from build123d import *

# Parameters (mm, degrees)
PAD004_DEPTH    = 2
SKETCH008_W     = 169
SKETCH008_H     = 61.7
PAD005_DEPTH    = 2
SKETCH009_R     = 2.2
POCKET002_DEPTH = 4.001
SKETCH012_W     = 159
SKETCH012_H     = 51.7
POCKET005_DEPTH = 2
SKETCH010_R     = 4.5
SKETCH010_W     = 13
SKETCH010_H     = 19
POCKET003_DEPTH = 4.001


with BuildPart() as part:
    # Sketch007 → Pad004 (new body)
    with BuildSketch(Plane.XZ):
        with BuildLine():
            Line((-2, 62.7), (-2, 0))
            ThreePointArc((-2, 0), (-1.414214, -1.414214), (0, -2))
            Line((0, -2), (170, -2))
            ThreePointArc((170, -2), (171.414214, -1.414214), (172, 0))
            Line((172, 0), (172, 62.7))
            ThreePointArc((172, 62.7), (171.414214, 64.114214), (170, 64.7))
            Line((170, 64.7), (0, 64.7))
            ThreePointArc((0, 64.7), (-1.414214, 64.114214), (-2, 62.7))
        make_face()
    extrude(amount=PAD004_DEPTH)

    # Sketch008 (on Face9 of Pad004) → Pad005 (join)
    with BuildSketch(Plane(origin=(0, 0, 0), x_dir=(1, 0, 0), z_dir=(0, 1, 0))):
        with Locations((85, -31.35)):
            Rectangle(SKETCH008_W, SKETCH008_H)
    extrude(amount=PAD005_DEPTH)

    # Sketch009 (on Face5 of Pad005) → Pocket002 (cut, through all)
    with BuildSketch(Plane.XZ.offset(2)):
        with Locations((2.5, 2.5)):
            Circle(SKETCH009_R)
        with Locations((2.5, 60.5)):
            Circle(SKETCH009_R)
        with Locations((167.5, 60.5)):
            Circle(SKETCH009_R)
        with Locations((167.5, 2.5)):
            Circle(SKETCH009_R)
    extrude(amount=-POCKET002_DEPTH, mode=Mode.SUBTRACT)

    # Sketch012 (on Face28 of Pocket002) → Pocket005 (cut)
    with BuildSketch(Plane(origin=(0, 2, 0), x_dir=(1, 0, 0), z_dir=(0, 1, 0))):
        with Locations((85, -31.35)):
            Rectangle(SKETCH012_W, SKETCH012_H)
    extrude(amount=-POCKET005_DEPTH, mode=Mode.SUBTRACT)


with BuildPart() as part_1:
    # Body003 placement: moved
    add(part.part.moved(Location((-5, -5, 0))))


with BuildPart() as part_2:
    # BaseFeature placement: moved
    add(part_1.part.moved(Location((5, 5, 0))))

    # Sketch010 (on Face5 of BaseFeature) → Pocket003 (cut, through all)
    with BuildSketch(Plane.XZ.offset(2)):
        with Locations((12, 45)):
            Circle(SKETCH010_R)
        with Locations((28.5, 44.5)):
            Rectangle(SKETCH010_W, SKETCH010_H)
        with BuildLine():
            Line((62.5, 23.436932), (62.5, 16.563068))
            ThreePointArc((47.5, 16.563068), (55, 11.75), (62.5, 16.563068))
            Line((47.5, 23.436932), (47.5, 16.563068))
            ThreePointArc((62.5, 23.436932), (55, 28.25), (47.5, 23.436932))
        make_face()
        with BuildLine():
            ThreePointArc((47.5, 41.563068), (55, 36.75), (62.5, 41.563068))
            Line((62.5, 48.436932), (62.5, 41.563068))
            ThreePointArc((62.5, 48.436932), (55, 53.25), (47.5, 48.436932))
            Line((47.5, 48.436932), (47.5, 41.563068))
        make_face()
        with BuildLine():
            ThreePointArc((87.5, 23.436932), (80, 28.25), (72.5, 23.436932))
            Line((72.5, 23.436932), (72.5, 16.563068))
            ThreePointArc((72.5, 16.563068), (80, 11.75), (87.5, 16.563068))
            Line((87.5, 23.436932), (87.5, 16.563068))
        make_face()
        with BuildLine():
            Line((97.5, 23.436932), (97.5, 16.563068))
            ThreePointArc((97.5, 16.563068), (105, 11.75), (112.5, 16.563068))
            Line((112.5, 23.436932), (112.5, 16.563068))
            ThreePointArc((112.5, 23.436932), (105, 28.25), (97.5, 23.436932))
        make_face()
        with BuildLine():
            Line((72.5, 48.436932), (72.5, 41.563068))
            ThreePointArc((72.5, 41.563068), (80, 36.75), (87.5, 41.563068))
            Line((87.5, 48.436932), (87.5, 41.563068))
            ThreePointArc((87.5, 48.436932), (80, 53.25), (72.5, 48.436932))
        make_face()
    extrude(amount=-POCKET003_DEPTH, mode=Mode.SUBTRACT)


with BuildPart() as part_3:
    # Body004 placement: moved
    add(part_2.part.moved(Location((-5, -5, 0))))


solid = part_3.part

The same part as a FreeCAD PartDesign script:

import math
import FreeCAD as App
import Part
import Sketcher
from FreeCAD import Vector


def add_polygon(sketch, points):
    """Adds a closed chain of lines whose ends are joined by coincident constraints."""
    first, n = sketch.GeometryCount, len(points)
    for a, b in zip(points, points[1:] + points[:1]):
        sketch.addGeometry(Part.LineSegment(App.Vector(*a, 0), App.Vector(*b, 0)), False)
    for i in range(n):
        sketch.addConstraint(Sketcher.Constraint("Coincident", first + i, 2, first + (i + 1) % n, 1))

doc = App.newDocument("Part")
params = doc.addObject("Spreadsheet::Sheet", "Params")
for row, (alias, value) in enumerate([
    ("sketch1_radius", "1.999999 mm"),
    ("sketch1_width", "170 mm"),
    ("sketch1_height", "62.7 mm"),
    ("pad1_length", "2 mm"),
    ("sketch2_width", "169 mm"),
    ("sketch2_height", "61.7 mm"),
    ("pad2_length", "2 mm"),
    ("sketch3_diameter", "4.4 mm"),
    ("sketch4_width", "159 mm"),
    ("sketch4_height", "51.7 mm"),
    ("pocket2_length", "2 mm"),
    ("sketch5_diameter", "9 mm"),
    ("sketch5_width", "13 mm"),
    ("sketch5_height", "19 mm"),
    ("sketch5_radius", "8.25 mm"),
], start=1):
    params.set(f"A{row}", alias)
    params.set(f"B{row}", "=" + value)
    params.setAlias(f"B{row}", alias)

body = doc.addObject("PartDesign::Body", "Body")

# Sketch on XZ plane
sketch1 = body.newObject("Sketcher::SketchObject", "Sketch")
sketch1.AttachmentSupport = (doc.getObject("XZ_Plane"), [""])
sketch1.MapMode = "FlatFace"
sketch1.addGeometry([
    Part.LineSegment(Vector(-2, 62.7, 0), Vector(-2, 0, 0)),  # 0
    Part.ArcOfCircle(Part.Circle(Vector(0, 0, 0), Vector(0, 0, 1), 2), math.radians(180), math.radians(270)),  # 1
    Part.LineSegment(Vector(0, -2, 0), Vector(170, -2, 0)),  # 2
    Part.ArcOfCircle(Part.Circle(Vector(170, 0, 0), Vector(0, 0, 1), 2), math.radians(-90), math.radians(0)),  # 3
    Part.LineSegment(Vector(172, 0, 0), Vector(172, 62.7, 0)),  # 4
    Part.ArcOfCircle(Part.Circle(Vector(170, 62.7, 0), Vector(0, 0, 1), 2), math.radians(0), math.radians(90)),  # 5
    Part.LineSegment(Vector(170, 64.7, 0), Vector(0, 64.7, 0)),  # 6
    Part.ArcOfCircle(Part.Circle(Vector(0, 62.7, 0), Vector(0, 0, 1), 2), math.radians(90), math.radians(180)),  # 7
], False)
sketch1.addConstraint([
    Sketcher.Constraint("Tangent", 0, 2, 1, 1),
    Sketcher.Constraint("Tangent", 1, 2, 2, 1),
    Sketcher.Constraint("Tangent", 2, 2, 3, 1),
    Sketcher.Constraint("Tangent", 3, 2, 4, 1),
    Sketcher.Constraint("Tangent", 4, 2, 5, 1),
    Sketcher.Constraint("Tangent", 5, 2, 6, 1),
    Sketcher.Constraint("Tangent", 6, 2, 7, 1),
    Sketcher.Constraint("Tangent", 7, 2, 0, 1),
    Sketcher.Constraint("Vertical", 0),
    Sketcher.Constraint("Horizontal", 2),
    Sketcher.Constraint("Vertical", 4),
    Sketcher.Constraint("Horizontal", 6),
    Sketcher.Constraint("Coincident", 1, 3, -1, 1),
    Sketcher.Constraint("Equal", 1, 3),
    Sketcher.Constraint("Equal", 3, 5),
    Sketcher.Constraint("Equal", 5, 7),
    Sketcher.Constraint("Radius", 1, 1.999999),
    Sketcher.Constraint("DistanceX", 2, 1, 2, 2, 170.0),
    Sketcher.Constraint("DistanceY", 0, 2, 0, 1, 62.7),
])
sketch1.setExpression("Constraints[16]", "Params.sketch1_radius")
sketch1.setExpression("Constraints[17]", "Params.sketch1_width")
sketch1.setExpression("Constraints[18]", "Params.sketch1_height")
pad1 = body.newObject("PartDesign::Pad", "Pad")
pad1.Profile = sketch1
pad1.setExpression("Length", "Params.pad1_length")

# Sketch on XZ plane
sketch2 = body.newObject("Sketcher::SketchObject", "Sketch001")
sketch2.AttachmentSupport = (doc.getObject("XZ_Plane"), [""])
sketch2.MapMode = "FlatFace"
add_polygon(sketch2, [(0, 0), (0, 62), (170, 62), (170, 0)])  # lines 0-3
sketch2.addConstraint([
    Sketcher.Constraint("Vertical", 0),
    Sketcher.Constraint("Horizontal", 1),
    Sketcher.Constraint("Vertical", 2),
    Sketcher.Constraint("Horizontal", 3),
    Sketcher.Constraint("DistanceX", 1, 1, 1, 2, 169.0),
    Sketcher.Constraint("DistanceY", 0, 1, 0, 2, 61.7),
    Sketcher.Constraint("DistanceX", -1, 1, 0, 2, 0.5),
    Sketcher.Constraint("DistanceY", -1, 1, 0, 2, 62.2),
])
sketch2.setExpression("Constraints[8]", "Params.sketch2_width")
sketch2.setExpression("Constraints[9]", "Params.sketch2_height")
pad2 = body.newObject("PartDesign::Pad", "Pad001")
pad2.Profile = sketch2
pad2.setExpression("Length", "Params.pad2_length")
pad2.Reversed = True

# Sketch on XZ plane
sketch3 = body.newObject("Sketcher::SketchObject", "Sketch002")
sketch3.AttachmentSupport = (doc.getObject("XZ_Plane"), [""])
sketch3.MapMode = "FlatFace"
sketch3.AttachmentOffset = App.Placement(Vector(0, 0, 2), App.Rotation())
sketch3.addGeometry([
    Part.Circle(Vector(2.5, 2.5, 0), Vector(0, 0, 1), 2.2),
    Part.Circle(Vector(2.5, 60.5, 0), Vector(0, 0, 1), 2.2),
    Part.Circle(Vector(167.5, 60.5, 0), Vector(0, 0, 1), 2.2),
    Part.Circle(Vector(167.5, 2.5, 0), Vector(0, 0, 1), 2.2),
], False)
sketch3.addConstraint([
    Sketcher.Constraint("Equal", 0, 1),
    Sketcher.Constraint("Equal", 1, 2),
    Sketcher.Constraint("Equal", 2, 3),
    Sketcher.Constraint("Horizontal", 1, 3, 2, 3),
    Sketcher.Constraint("Horizontal", 0, 3, 3, 3),
    Sketcher.Constraint("Vertical", 0, 3, 1, 3),
    Sketcher.Constraint("Vertical", 2, 3, 3, 3),
    Sketcher.Constraint("Diameter", 0, 4.4),
    Sketcher.Constraint("DistanceY", 0, 3, 1, 3, 58.0),
    Sketcher.Constraint("DistanceX", 1, 3, 2, 3, 165.0),
    Sketcher.Constraint("DistanceX", -1, 1, 0, 3, 2.5),
    Sketcher.Constraint("DistanceY", -1, 1, 0, 3, 2.5),
])
sketch3.setExpression("Constraints[7]", "Params.sketch3_diameter")
pocket1 = body.newObject("PartDesign::Pocket", "Pocket")
pocket1.Profile = sketch3
pocket1.Type = "ThroughAll"

# Sketch on XZ plane
sketch4 = body.newObject("Sketcher::SketchObject", "Sketch003")
sketch4.AttachmentSupport = (doc.getObject("XZ_Plane"), [""])
sketch4.MapMode = "FlatFace"
sketch4.AttachmentOffset = App.Placement(Vector(0, 0, -2), App.Rotation())
add_polygon(sketch4, [(6, 6), (6, 57), (164, 57), (164, 6)])  # lines 0-3
sketch4.addConstraint([
    Sketcher.Constraint("Vertical", 0),
    Sketcher.Constraint("Horizontal", 1),
    Sketcher.Constraint("Vertical", 2),
    Sketcher.Constraint("Horizontal", 3),
    Sketcher.Constraint("DistanceX", 1, 1, 1, 2, 159.0),
    Sketcher.Constraint("DistanceY", 0, 1, 0, 2, 51.7),
    Sketcher.Constraint("DistanceX", -1, 1, 0, 2, 5.5),
    Sketcher.Constraint("DistanceY", -1, 1, 0, 2, 57.2),
])
sketch4.setExpression("Constraints[8]", "Params.sketch4_width")
sketch4.setExpression("Constraints[9]", "Params.sketch4_height")
pocket2 = body.newObject("PartDesign::Pocket", "Pocket001")
pocket2.Profile = sketch4
pocket2.setExpression("Length", "Params.pocket2_length")
pocket2.Reversed = True
body2 = doc.addObject("PartDesign::Body", "Body001")
doc.recompute()

body.Placement = App.Placement(Vector(-5, -5, 0), App.Rotation(Vector(0, 0, 1), 0))
boolean = body2.newObject("PartDesign::Boolean", "Boolean")
boolean.Type = "Fuse"
boolean.addObjects([body])
body3 = doc.addObject("PartDesign::Body", "Body002")
doc.recompute()

body2.Placement = App.Placement(Vector(5, 5, 0), App.Rotation(Vector(0, 0, 1), 0))
boolean2 = body3.newObject("PartDesign::Boolean", "Boolean001")
boolean2.Type = "Fuse"
boolean2.addObjects([body2])

# Sketch on XZ plane
sketch5 = body3.newObject("Sketcher::SketchObject", "Sketch004")
sketch5.AttachmentSupport = (doc.getObject("XZ_Plane002"), [""])
sketch5.MapMode = "FlatFace"
sketch5.AttachmentOffset = App.Placement(Vector(0, 0, 2), App.Rotation())
sketch5.addGeometry(Part.Circle(Vector(12, 45, 0), Vector(0, 0, 1), 4.5), False)  # 0
add_polygon(sketch5, [(22, 54), (22, 35), (35, 35), (35, 54)])  # lines 1-4
sketch5.addGeometry(Part.LineSegment(Vector(62.5, 16.6, 0), Vector(62.5, 23.4, 0)), False)  # 5
sketch5.addGeometry(Part.ArcOfCircle(Part.Circle(Vector(55, 20, 0), Vector(0, 0, 1), 8.3), math.radians(25), math.radians(155)), False)  # 6
sketch5.addGeometry(Part.LineSegment(Vector(47.5, 23.4, 0), Vector(47.5, 16.6, 0)), False)  # 7
sketch5.addGeometry(Part.ArcOfCircle(Part.Circle(Vector(55, 20, 0), Vector(0, 0, 1), 8.3), math.radians(-155), math.radians(-25)), False)  # 8
sketch5.addGeometry(Part.ArcOfCircle(Part.Circle(Vector(55, 45, 0), Vector(0, 0, 1), 8.3), math.radians(-155), math.radians(-25)), False)  # 9
sketch5.addGeometry(Part.LineSegment(Vector(62.5, 41.6, 0), Vector(62.5, 48.4, 0)), False)  # 10
sketch5.addGeometry(Part.ArcOfCircle(Part.Circle(Vector(55, 45, 0), Vector(0, 0, 1), 8.3), math.radians(25), math.radians(155)), False)  # 11
sketch5.addGeometry(Part.LineSegment(Vector(47.5, 48.4, 0), Vector(47.5, 41.6, 0)), False)  # 12
sketch5.addGeometry(Part.ArcOfCircle(Part.Circle(Vector(80, 20, 0), Vector(0, 0, 1), 8.3), math.radians(25), math.radians(155)), False)  # 13
sketch5.addGeometry(Part.LineSegment(Vector(72.5, 23.4, 0), Vector(72.5, 16.6, 0)), False)  # 14
sketch5.addGeometry(Part.ArcOfCircle(Part.Circle(Vector(80, 20, 0), Vector(0, 0, 1), 8.3), math.radians(-155), math.radians(-25)), False)  # 15
sketch5.addGeometry(Part.LineSegment(Vector(87.5, 16.6, 0), Vector(87.5, 23.4, 0)), False)  # 16
sketch5.addGeometry(Part.LineSegment(Vector(97.5, 23.4, 0), Vector(97.5, 16.6, 0)), False)  # 17
sketch5.addGeometry(Part.ArcOfCircle(Part.Circle(Vector(105, 20, 0), Vector(0, 0, 1), 8.3), math.radians(-155), math.radians(-25)), False)  # 18
sketch5.addGeometry(Part.LineSegment(Vector(112.5, 16.6, 0), Vector(112.5, 23.4, 0)), False)  # 19
sketch5.addGeometry(Part.ArcOfCircle(Part.Circle(Vector(105, 20, 0), Vector(0, 0, 1), 8.3), math.radians(25), math.radians(155)), False)  # 20
sketch5.addGeometry(Part.LineSegment(Vector(72.5, 48.4, 0), Vector(72.5, 41.6, 0)), False)  # 21
sketch5.addGeometry(Part.ArcOfCircle(Part.Circle(Vector(80, 45, 0), Vector(0, 0, 1), 8.3), math.radians(-155), math.radians(-25)), False)  # 22
sketch5.addGeometry(Part.LineSegment(Vector(87.5, 41.6, 0), Vector(87.5, 48.4, 0)), False)  # 23
sketch5.addGeometry(Part.ArcOfCircle(Part.Circle(Vector(80, 45, 0), Vector(0, 0, 1), 8.3), math.radians(25), math.radians(155)), False)  # 24
sketch5.addConstraint([
    Sketcher.Constraint("Coincident", 5, 2, 6, 1),
    Sketcher.Constraint("Coincident", 6, 2, 7, 1),
    Sketcher.Constraint("Coincident", 7, 2, 8, 1),
    Sketcher.Constraint("Coincident", 8, 2, 5, 1),
    Sketcher.Constraint("Coincident", 9, 2, 10, 1),
    Sketcher.Constraint("Coincident", 10, 2, 11, 1),
    Sketcher.Constraint("Coincident", 11, 2, 12, 1),
    Sketcher.Constraint("Coincident", 12, 2, 9, 1),
    Sketcher.Constraint("Coincident", 13, 2, 14, 1),
    Sketcher.Constraint("Coincident", 14, 2, 15, 1),
    Sketcher.Constraint("Coincident", 15, 2, 16, 1),
    Sketcher.Constraint("Coincident", 16, 2, 13, 1),
    Sketcher.Constraint("Coincident", 17, 2, 18, 1),
    Sketcher.Constraint("Coincident", 18, 2, 19, 1),
    Sketcher.Constraint("Coincident", 19, 2, 20, 1),
    Sketcher.Constraint("Coincident", 20, 2, 17, 1),
    Sketcher.Constraint("Coincident", 21, 2, 22, 1),
    Sketcher.Constraint("Coincident", 22, 2, 23, 1),
    Sketcher.Constraint("Coincident", 23, 2, 24, 1),
    Sketcher.Constraint("Coincident", 24, 2, 21, 1),
    Sketcher.Constraint("Vertical", 1),
    Sketcher.Constraint("Horizontal", 2),
    Sketcher.Constraint("Vertical", 3),
    Sketcher.Constraint("Horizontal", 4),
    Sketcher.Constraint("Vertical", 5),
    Sketcher.Constraint("Vertical", 7),
    Sketcher.Constraint("Vertical", 10),
    Sketcher.Constraint("Vertical", 12),
    Sketcher.Constraint("Vertical", 14),
    Sketcher.Constraint("Vertical", 16),
    Sketcher.Constraint("Vertical", 17),
    Sketcher.Constraint("Vertical", 19),
    Sketcher.Constraint("Vertical", 21),
    Sketcher.Constraint("Vertical", 23),
    Sketcher.Constraint("Coincident", 8, 3, 6, 3),
    Sketcher.Constraint("Coincident", 11, 3, 9, 3),
    Sketcher.Constraint("Coincident", 15, 3, 13, 3),
    Sketcher.Constraint("Coincident", 20, 3, 18, 3),
    Sketcher.Constraint("Coincident", 24, 3, 22, 3),
    Sketcher.Constraint("Equal", 6, 8),
    Sketcher.Constraint("Equal", 8, 9),
    Sketcher.Constraint("Equal", 9, 11),
    Sketcher.Constraint("Equal", 11, 13),
    Sketcher.Constraint("Equal", 13, 15),
    Sketcher.Constraint("Equal", 15, 18),
    Sketcher.Constraint("Equal", 18, 20),
    Sketcher.Constraint("Equal", 20, 22),
    Sketcher.Constraint("Equal", 22, 24),
    Sketcher.Constraint("Horizontal", 0, 3, 9, 3),
    Sketcher.Constraint("Horizontal", 8, 3, 13, 3),
    Sketcher.Constraint("Horizontal", 15, 3, 18, 3),
    Sketcher.Constraint("Horizontal", 11, 3, 22, 3),
    Sketcher.Constraint("Horizontal", 5, 2, 6, 2),
    Sketcher.Constraint("Horizontal", 10, 2, 11, 2),
    Sketcher.Constraint("Horizontal", 6, 2, 13, 2),
    Sketcher.Constraint("Horizontal", 14, 2, 15, 2),
    Sketcher.Constraint("Horizontal", 15, 2, 17, 2),
    Sketcher.Constraint("Horizontal", 17, 2, 18, 2),
    Sketcher.Constraint("Horizontal", 12, 2, 21, 2),
    Sketcher.Constraint("Horizontal", 21, 2, 22, 2),
    Sketcher.Constraint("Vertical", 8, 3, 9, 3),
    Sketcher.Constraint("Vertical", 15, 3, 22, 3),
    Sketcher.Constraint("Vertical", 8, 2, 9, 2),
    Sketcher.Constraint("Diameter", 0, 9.0),
    Sketcher.Constraint("DistanceX", 2, 1, 2, 2, 13.0),
    Sketcher.Constraint("DistanceY", 1, 2, 1, 1, 19.0),
    Sketcher.Constraint("Radius", 6, 8.25),
    Sketcher.Constraint("DistanceX", -1, 1, 0, 3, 12.0),
    Sketcher.Constraint("DistanceY", -1, 1, 0, 3, 45.0),
    Sketcher.Constraint("DistanceX", -1, 1, 6, 3, 55.0),
    Sketcher.Constraint("DistanceY", -1, 1, 6, 3, 20.0),
    Sketcher.Constraint("DistanceX", -1, 1, 13, 3, 80.0),
    Sketcher.Constraint("DistanceX", -1, 1, 18, 3, 105.0),
    Sketcher.Constraint("DistanceX", -1, 1, 1, 2, 22.0),
    Sketcher.Constraint("DistanceY", -1, 1, 1, 2, 35.0),
    Sketcher.Constraint("DistanceX", 6, 2, 5, 2, 15.0),
])
sketch5.setExpression("Constraints[67]", "Params.sketch5_diameter")
sketch5.setExpression("Constraints[68]", "Params.sketch5_width")
sketch5.setExpression("Constraints[69]", "Params.sketch5_height")
sketch5.setExpression("Constraints[70]", "Params.sketch5_radius")
pocket3 = body3.newObject("PartDesign::Pocket", "Pocket002")
pocket3.Profile = sketch5
pocket3.Type = "ThroughAll"
body4 = doc.addObject("PartDesign::Body", "Body003")
doc.recompute()

body3.Placement = App.Placement(Vector(-5, -5, 0), App.Rotation(Vector(0, 0, 1), 0))
boolean3 = body4.newObject("PartDesign::Boolean", "Boolean002")
boolean3.Type = "Fuse"
boolean3.addObjects([body3])

doc.recompute()
